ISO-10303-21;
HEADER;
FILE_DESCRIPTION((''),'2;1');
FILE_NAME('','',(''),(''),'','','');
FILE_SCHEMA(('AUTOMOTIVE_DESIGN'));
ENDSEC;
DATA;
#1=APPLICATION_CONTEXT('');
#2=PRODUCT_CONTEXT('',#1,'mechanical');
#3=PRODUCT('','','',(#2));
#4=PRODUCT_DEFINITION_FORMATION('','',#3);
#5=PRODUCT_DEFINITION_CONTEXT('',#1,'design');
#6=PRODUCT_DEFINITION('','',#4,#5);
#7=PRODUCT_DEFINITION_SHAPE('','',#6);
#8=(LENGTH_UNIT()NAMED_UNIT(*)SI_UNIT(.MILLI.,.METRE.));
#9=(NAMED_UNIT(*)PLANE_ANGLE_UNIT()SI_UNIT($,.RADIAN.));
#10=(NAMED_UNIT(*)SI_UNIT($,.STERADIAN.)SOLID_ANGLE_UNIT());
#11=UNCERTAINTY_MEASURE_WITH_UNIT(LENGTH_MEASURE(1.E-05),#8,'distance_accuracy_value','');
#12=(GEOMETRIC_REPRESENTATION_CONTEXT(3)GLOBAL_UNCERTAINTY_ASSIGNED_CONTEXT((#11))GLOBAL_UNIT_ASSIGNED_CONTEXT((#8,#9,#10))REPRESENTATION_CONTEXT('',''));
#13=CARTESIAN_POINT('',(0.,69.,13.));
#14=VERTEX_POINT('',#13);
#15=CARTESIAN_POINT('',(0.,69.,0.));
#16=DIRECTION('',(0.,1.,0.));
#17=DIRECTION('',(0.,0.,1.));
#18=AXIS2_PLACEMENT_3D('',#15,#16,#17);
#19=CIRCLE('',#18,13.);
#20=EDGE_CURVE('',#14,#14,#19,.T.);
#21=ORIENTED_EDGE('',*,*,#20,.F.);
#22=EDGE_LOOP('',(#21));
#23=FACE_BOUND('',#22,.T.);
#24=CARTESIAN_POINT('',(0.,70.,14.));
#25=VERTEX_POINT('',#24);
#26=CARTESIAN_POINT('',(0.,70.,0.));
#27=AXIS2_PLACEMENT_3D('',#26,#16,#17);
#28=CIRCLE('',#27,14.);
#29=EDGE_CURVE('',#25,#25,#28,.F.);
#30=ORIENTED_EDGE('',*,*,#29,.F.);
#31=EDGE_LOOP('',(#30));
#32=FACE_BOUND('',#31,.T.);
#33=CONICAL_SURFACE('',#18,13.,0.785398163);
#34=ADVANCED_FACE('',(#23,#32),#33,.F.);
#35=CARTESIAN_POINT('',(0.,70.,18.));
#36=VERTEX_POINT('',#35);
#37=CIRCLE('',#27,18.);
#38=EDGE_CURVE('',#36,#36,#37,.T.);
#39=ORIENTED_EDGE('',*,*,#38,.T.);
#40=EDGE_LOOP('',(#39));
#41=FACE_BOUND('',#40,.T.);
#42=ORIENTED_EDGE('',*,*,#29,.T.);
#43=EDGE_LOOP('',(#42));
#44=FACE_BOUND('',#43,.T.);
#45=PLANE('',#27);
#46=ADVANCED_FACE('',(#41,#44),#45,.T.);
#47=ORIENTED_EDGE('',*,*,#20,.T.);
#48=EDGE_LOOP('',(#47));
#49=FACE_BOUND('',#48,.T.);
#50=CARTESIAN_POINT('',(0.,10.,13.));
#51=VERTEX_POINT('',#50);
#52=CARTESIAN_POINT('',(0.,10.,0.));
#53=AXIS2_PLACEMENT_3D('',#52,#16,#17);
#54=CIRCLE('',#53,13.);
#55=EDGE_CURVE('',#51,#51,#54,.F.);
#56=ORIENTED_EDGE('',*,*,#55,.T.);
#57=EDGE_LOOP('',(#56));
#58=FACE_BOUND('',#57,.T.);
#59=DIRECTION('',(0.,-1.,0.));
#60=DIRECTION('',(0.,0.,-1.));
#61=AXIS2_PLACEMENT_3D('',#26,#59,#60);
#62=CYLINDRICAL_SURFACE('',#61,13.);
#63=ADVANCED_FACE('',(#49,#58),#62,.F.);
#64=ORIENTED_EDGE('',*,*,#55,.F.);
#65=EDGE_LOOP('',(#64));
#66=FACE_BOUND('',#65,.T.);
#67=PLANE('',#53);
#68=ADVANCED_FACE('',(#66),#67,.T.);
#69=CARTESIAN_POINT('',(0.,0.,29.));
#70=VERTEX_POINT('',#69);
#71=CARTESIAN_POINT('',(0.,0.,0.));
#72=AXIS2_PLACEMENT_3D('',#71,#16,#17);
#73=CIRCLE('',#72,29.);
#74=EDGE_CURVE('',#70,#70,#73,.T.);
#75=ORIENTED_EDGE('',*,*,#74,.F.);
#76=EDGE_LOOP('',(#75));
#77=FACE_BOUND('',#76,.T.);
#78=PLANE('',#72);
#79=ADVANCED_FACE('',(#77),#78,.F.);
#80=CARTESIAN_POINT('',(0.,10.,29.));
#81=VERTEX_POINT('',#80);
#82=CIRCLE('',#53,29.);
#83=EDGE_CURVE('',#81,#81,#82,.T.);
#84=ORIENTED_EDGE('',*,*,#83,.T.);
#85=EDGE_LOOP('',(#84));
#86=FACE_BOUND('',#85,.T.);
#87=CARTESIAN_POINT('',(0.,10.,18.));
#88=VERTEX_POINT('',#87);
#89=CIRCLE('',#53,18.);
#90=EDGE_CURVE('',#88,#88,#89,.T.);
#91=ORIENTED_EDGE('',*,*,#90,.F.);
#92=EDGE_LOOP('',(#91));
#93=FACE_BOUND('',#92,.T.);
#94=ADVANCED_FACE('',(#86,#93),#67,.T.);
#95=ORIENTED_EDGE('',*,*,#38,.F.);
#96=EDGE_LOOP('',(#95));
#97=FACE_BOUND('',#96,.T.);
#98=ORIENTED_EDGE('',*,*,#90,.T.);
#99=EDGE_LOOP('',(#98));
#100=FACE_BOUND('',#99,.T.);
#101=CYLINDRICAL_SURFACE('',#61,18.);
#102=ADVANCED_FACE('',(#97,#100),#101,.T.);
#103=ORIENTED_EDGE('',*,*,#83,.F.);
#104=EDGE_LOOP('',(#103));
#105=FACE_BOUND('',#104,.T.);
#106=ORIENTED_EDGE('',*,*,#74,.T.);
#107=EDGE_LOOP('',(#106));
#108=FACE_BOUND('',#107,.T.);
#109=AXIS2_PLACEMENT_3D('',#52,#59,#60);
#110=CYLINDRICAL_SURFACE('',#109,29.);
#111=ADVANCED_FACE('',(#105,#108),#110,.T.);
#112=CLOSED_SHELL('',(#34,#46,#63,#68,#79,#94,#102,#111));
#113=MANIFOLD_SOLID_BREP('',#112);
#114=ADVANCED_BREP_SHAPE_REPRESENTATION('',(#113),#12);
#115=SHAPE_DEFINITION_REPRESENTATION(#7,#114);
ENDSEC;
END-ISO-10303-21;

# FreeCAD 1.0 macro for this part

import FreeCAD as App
import Part
import Sketcher
from FreeCAD import Vector


def edges_at(feature, points):
    """Names of the edges that pass closest to the given points."""
    edges = feature.Shape.Edges
    near = lambda p: min(range(len(edges)), key=lambda i: edges[i].distToShape(Part.Vertex(*p))[0])
    return sorted({f"Edge{near(p) + 1}" for p in points})

doc = App.newDocument("Part")
body = doc.addObject("PartDesign::Body", "Body")

# Sketch on XZ plane
sketch1 = body.newObject("Sketcher::SketchObject", "Sketch")
sketch1.AttachmentSupport = (doc.getObject("XZ_Plane"), [""])
sketch1.MapMode = "FlatFace"
sketch1.addGeometry(Part.Circle(Vector(0, 0, 0), Vector(0, 0, 1), 29), False)
sketch1.addConstraint([
    Sketcher.Constraint("Coincident", 0, 3, -1, 1),
    Sketcher.Constraint("Diameter", 0, 58.0),
])
pad1 = body.newObject("PartDesign::Pad", "Pad")
pad1.Profile = sketch1
pad1.Length = 10
pad1.Reversed = True

# Sketch on XZ plane
sketch2 = body.newObject("Sketcher::SketchObject", "Sketch001")
sketch2.AttachmentSupport = (doc.getObject("XZ_Plane"), [""])
sketch2.MapMode = "FlatFace"
sketch2.AttachmentOffset = App.Placement(Vector(0, 0, -10), App.Rotation())
sketch2.addGeometry([
    Part.Circle(Vector(0, 0, 0), Vector(0, 0, 1), 18),
    Part.Circle(Vector(0, 0, 0), Vector(0, 0, 1), 13),
], False)
sketch2.addConstraint([
    Sketcher.Constraint("Coincident", 0, 3, -1, 1),
    Sketcher.Constraint("Coincident", 1, 3, -1, 1),
    Sketcher.Constraint("Diameter", 0, 36.0),
    Sketcher.Constraint("Diameter", 1, 26.0),
])
pad2 = body.newObject("PartDesign::Pad", "Pad001")
pad2.Profile = sketch2
pad2.Length = 60
pad2.Reversed = True
doc.recompute()

chamfer = body.newObject("PartDesign::Chamfer", "Chamfer")
chamfer.Base = (pad2, edges_at(pad2, [(0, 70, -13)]))
chamfer.Size = 1

doc.recompute()
